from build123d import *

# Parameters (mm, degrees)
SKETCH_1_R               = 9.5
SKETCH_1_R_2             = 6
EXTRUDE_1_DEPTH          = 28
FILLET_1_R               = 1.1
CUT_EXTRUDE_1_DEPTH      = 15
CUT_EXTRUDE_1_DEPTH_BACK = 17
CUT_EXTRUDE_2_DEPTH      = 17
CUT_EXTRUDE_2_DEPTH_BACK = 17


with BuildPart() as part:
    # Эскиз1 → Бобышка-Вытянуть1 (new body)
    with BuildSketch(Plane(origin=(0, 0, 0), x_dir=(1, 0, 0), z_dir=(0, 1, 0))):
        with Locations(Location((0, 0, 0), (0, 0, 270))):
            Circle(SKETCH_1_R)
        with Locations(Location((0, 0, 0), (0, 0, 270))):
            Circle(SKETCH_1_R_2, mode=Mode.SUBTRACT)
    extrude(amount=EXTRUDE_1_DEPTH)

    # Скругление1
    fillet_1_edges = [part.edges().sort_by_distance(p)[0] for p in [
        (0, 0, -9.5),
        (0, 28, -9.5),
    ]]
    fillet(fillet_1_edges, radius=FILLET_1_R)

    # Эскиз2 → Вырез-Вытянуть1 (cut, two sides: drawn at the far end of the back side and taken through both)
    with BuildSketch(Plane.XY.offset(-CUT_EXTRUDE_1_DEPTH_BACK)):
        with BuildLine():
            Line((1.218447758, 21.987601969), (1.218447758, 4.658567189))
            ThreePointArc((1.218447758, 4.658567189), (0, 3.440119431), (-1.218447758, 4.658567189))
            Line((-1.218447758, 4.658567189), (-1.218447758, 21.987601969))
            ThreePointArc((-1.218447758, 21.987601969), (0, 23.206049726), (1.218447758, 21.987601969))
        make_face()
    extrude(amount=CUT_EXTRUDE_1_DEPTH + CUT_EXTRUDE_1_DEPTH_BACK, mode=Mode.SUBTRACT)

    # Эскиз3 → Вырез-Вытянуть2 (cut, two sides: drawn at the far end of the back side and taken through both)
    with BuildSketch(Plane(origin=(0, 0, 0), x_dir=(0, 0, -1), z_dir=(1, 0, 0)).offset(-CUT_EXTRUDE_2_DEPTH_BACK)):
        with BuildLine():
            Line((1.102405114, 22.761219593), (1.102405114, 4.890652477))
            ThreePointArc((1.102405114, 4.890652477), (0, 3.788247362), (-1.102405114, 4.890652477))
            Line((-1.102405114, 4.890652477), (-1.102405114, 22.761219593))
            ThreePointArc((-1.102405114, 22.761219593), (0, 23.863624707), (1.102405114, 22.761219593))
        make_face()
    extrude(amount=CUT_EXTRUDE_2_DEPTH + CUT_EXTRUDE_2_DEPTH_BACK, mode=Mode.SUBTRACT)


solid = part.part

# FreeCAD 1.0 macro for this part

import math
import FreeCAD as App
import Part
import Sketcher

V = App.Vector


def edges_at(feature, points):
    """Names of the edges that pass closest to the given points."""
    edges = feature.Shape.Edges
    near = lambda p: min(range(len(edges)), key=lambda i: edges[i].distToShape(Part.Vertex(*p))[0])
    return sorted({f"Edge{near(p) + 1}" for p in points})

doc = App.newDocument("Part")
body = doc.addObject("PartDesign::Body", "Body")

sketch1 = body.newObject("Sketcher::SketchObject", "Sketch")
sketch1.AttachmentSupport = (doc.getObject("XZ_Plane"), [""])
sketch1.MapMode = "FlatFace"
sketch1.addGeometry(Part.Circle(V(0, 0, 0), V(0, 0, 1), 10), False)
sketch1.addGeometry(Part.Circle(V(0, 0, 0), V(0, 0, 1), 6), False)
sketch1.addConstraint(Sketcher.Constraint("Coincident", 0, 3, -1, 1))
sketch1.addConstraint(Sketcher.Constraint("Coincident", 1, 3, -1, 1))
sketch1.addConstraint(Sketcher.Constraint("Diameter", 0, 19.0))
sketch1.addConstraint(Sketcher.Constraint("Diameter", 1, 12.0))
pad1 = body.newObject("PartDesign::Pad", "Pad")
pad1.Profile = sketch1
pad1.Length = 28
pad1.Reversed = True
doc.recompute()

fillet = body.newObject("PartDesign::Fillet", "Fillet")
fillet.Base = (pad1, edges_at(pad1, [(0, 0, -9.5), (0, 28, -9.5)]))
fillet.Radius = 1.1

sketch2 = body.newObject("Sketcher::SketchObject", "Sketch001")
sketch2.AttachmentSupport = (doc.getObject("XY_Plane"), [""])
sketch2.MapMode = "FlatFace"
sketch2.addGeometry(Part.LineSegment(V(1.2, 4.7, 0), V(1.2, 22, 0)), False)
sketch2.addGeometry(Part.ArcOfCircle(Part.Circle(V(0, 22, 0), V(0, 0, 1), 1.2), math.radians(0), math.radians(180)), False)
sketch2.addGeometry(Part.LineSegment(V(-1.2, 22, 0), V(-1.2, 4.7, 0)), False)
sketch2.addGeometry(Part.ArcOfCircle(Part.Circle(V(0, 4.7, 0), V(0, 0, 1), 1.2), math.radians(180), math.radians(360)), False)
sketch2.addConstraint(Sketcher.Constraint("Tangent", 0, 2, 1, 1))
sketch2.addConstraint(Sketcher.Constraint("Tangent", 1, 2, 2, 1))
sketch2.addConstraint(Sketcher.Constraint("Tangent", 2, 2, 3, 1))
sketch2.addConstraint(Sketcher.Constraint("Tangent", 3, 2, 0, 1))
sketch2.addConstraint(Sketcher.Constraint("Vertical", 0))
sketch2.addConstraint(Sketcher.Constraint("Vertical", 2))
sketch2.addConstraint(Sketcher.Constraint("PointOnObject", 1, 3, -2))
sketch2.addConstraint(Sketcher.Constraint("Radius", 1, 1.218448))
sketch2.addConstraint(Sketcher.Constraint("DistanceY", -1, 1, 1, 3, 21.987602))
sketch2.addConstraint(Sketcher.Constraint("DistanceY", 0, 1, 0, 2, 17.329035))
pocket1 = body.newObject("PartDesign::Pocket", "Pocket")
pocket1.Profile = sketch2
pocket1.Type = "ThroughAll"
pocket1.Midplane = True

sketch3 = body.newObject("Sketcher::SketchObject", "Sketch002")
sketch3.AttachmentSupport = (doc.getObject("YZ_Plane"), [""])
sketch3.MapMode = "FlatFace"
sketch3.addGeometry(Part.LineSegment(V(4.9, -1.1, 0), V(22.8, -1.1, 0)), False)
sketch3.addGeometry(Part.ArcOfCircle(Part.Circle(V(22.8, 0, 0), V(0, 0, 1), 1.1), math.radians(-90), math.radians(90)), False)
sketch3.addGeometry(Part.LineSegment(V(22.8, 1.1, 0), V(4.9, 1.1, 0)), False)
sketch3.addGeometry(Part.ArcOfCircle(Part.Circle(V(4.9, 0, 0), V(0, 0, 1), 1.1), math.radians(90), math.radians(270)), False)
sketch3.addConstraint(Sketcher.Constraint("Tangent", 0, 2, 1, 1))
sketch3.addConstraint(Sketcher.Constraint("Tangent", 1, 2, 2, 1))
sketch3.addConstraint(Sketcher.Constraint("Tangent", 2, 2, 3, 1))
sketch3.addConstraint(Sketcher.Constraint("Tangent", 3, 2, 0, 1))
sketch3.addConstraint(Sketcher.Constraint("Horizontal", 0))
sketch3.addConstraint(Sketcher.Constraint("Horizontal", 2))
sketch3.addConstraint(Sketcher.Constraint("PointOnObject", 1, 3, -1))
sketch3.addConstraint(Sketcher.Constraint("Radius", 1, 1.102405))
sketch3.addConstraint(Sketcher.Constraint("DistanceX", 0, 1, 0, 2, 17.870567))
sketch3.addConstraint(Sketcher.Constraint("DistanceX", -1, 1, 1, 3, 22.76122))
pocket2 = body.newObject("PartDesign::Pocket", "Pocket001")
pocket2.Profile = sketch3
pocket2.Type = "ThroughAll"
pocket2.Midplane = True

doc.recompute()
